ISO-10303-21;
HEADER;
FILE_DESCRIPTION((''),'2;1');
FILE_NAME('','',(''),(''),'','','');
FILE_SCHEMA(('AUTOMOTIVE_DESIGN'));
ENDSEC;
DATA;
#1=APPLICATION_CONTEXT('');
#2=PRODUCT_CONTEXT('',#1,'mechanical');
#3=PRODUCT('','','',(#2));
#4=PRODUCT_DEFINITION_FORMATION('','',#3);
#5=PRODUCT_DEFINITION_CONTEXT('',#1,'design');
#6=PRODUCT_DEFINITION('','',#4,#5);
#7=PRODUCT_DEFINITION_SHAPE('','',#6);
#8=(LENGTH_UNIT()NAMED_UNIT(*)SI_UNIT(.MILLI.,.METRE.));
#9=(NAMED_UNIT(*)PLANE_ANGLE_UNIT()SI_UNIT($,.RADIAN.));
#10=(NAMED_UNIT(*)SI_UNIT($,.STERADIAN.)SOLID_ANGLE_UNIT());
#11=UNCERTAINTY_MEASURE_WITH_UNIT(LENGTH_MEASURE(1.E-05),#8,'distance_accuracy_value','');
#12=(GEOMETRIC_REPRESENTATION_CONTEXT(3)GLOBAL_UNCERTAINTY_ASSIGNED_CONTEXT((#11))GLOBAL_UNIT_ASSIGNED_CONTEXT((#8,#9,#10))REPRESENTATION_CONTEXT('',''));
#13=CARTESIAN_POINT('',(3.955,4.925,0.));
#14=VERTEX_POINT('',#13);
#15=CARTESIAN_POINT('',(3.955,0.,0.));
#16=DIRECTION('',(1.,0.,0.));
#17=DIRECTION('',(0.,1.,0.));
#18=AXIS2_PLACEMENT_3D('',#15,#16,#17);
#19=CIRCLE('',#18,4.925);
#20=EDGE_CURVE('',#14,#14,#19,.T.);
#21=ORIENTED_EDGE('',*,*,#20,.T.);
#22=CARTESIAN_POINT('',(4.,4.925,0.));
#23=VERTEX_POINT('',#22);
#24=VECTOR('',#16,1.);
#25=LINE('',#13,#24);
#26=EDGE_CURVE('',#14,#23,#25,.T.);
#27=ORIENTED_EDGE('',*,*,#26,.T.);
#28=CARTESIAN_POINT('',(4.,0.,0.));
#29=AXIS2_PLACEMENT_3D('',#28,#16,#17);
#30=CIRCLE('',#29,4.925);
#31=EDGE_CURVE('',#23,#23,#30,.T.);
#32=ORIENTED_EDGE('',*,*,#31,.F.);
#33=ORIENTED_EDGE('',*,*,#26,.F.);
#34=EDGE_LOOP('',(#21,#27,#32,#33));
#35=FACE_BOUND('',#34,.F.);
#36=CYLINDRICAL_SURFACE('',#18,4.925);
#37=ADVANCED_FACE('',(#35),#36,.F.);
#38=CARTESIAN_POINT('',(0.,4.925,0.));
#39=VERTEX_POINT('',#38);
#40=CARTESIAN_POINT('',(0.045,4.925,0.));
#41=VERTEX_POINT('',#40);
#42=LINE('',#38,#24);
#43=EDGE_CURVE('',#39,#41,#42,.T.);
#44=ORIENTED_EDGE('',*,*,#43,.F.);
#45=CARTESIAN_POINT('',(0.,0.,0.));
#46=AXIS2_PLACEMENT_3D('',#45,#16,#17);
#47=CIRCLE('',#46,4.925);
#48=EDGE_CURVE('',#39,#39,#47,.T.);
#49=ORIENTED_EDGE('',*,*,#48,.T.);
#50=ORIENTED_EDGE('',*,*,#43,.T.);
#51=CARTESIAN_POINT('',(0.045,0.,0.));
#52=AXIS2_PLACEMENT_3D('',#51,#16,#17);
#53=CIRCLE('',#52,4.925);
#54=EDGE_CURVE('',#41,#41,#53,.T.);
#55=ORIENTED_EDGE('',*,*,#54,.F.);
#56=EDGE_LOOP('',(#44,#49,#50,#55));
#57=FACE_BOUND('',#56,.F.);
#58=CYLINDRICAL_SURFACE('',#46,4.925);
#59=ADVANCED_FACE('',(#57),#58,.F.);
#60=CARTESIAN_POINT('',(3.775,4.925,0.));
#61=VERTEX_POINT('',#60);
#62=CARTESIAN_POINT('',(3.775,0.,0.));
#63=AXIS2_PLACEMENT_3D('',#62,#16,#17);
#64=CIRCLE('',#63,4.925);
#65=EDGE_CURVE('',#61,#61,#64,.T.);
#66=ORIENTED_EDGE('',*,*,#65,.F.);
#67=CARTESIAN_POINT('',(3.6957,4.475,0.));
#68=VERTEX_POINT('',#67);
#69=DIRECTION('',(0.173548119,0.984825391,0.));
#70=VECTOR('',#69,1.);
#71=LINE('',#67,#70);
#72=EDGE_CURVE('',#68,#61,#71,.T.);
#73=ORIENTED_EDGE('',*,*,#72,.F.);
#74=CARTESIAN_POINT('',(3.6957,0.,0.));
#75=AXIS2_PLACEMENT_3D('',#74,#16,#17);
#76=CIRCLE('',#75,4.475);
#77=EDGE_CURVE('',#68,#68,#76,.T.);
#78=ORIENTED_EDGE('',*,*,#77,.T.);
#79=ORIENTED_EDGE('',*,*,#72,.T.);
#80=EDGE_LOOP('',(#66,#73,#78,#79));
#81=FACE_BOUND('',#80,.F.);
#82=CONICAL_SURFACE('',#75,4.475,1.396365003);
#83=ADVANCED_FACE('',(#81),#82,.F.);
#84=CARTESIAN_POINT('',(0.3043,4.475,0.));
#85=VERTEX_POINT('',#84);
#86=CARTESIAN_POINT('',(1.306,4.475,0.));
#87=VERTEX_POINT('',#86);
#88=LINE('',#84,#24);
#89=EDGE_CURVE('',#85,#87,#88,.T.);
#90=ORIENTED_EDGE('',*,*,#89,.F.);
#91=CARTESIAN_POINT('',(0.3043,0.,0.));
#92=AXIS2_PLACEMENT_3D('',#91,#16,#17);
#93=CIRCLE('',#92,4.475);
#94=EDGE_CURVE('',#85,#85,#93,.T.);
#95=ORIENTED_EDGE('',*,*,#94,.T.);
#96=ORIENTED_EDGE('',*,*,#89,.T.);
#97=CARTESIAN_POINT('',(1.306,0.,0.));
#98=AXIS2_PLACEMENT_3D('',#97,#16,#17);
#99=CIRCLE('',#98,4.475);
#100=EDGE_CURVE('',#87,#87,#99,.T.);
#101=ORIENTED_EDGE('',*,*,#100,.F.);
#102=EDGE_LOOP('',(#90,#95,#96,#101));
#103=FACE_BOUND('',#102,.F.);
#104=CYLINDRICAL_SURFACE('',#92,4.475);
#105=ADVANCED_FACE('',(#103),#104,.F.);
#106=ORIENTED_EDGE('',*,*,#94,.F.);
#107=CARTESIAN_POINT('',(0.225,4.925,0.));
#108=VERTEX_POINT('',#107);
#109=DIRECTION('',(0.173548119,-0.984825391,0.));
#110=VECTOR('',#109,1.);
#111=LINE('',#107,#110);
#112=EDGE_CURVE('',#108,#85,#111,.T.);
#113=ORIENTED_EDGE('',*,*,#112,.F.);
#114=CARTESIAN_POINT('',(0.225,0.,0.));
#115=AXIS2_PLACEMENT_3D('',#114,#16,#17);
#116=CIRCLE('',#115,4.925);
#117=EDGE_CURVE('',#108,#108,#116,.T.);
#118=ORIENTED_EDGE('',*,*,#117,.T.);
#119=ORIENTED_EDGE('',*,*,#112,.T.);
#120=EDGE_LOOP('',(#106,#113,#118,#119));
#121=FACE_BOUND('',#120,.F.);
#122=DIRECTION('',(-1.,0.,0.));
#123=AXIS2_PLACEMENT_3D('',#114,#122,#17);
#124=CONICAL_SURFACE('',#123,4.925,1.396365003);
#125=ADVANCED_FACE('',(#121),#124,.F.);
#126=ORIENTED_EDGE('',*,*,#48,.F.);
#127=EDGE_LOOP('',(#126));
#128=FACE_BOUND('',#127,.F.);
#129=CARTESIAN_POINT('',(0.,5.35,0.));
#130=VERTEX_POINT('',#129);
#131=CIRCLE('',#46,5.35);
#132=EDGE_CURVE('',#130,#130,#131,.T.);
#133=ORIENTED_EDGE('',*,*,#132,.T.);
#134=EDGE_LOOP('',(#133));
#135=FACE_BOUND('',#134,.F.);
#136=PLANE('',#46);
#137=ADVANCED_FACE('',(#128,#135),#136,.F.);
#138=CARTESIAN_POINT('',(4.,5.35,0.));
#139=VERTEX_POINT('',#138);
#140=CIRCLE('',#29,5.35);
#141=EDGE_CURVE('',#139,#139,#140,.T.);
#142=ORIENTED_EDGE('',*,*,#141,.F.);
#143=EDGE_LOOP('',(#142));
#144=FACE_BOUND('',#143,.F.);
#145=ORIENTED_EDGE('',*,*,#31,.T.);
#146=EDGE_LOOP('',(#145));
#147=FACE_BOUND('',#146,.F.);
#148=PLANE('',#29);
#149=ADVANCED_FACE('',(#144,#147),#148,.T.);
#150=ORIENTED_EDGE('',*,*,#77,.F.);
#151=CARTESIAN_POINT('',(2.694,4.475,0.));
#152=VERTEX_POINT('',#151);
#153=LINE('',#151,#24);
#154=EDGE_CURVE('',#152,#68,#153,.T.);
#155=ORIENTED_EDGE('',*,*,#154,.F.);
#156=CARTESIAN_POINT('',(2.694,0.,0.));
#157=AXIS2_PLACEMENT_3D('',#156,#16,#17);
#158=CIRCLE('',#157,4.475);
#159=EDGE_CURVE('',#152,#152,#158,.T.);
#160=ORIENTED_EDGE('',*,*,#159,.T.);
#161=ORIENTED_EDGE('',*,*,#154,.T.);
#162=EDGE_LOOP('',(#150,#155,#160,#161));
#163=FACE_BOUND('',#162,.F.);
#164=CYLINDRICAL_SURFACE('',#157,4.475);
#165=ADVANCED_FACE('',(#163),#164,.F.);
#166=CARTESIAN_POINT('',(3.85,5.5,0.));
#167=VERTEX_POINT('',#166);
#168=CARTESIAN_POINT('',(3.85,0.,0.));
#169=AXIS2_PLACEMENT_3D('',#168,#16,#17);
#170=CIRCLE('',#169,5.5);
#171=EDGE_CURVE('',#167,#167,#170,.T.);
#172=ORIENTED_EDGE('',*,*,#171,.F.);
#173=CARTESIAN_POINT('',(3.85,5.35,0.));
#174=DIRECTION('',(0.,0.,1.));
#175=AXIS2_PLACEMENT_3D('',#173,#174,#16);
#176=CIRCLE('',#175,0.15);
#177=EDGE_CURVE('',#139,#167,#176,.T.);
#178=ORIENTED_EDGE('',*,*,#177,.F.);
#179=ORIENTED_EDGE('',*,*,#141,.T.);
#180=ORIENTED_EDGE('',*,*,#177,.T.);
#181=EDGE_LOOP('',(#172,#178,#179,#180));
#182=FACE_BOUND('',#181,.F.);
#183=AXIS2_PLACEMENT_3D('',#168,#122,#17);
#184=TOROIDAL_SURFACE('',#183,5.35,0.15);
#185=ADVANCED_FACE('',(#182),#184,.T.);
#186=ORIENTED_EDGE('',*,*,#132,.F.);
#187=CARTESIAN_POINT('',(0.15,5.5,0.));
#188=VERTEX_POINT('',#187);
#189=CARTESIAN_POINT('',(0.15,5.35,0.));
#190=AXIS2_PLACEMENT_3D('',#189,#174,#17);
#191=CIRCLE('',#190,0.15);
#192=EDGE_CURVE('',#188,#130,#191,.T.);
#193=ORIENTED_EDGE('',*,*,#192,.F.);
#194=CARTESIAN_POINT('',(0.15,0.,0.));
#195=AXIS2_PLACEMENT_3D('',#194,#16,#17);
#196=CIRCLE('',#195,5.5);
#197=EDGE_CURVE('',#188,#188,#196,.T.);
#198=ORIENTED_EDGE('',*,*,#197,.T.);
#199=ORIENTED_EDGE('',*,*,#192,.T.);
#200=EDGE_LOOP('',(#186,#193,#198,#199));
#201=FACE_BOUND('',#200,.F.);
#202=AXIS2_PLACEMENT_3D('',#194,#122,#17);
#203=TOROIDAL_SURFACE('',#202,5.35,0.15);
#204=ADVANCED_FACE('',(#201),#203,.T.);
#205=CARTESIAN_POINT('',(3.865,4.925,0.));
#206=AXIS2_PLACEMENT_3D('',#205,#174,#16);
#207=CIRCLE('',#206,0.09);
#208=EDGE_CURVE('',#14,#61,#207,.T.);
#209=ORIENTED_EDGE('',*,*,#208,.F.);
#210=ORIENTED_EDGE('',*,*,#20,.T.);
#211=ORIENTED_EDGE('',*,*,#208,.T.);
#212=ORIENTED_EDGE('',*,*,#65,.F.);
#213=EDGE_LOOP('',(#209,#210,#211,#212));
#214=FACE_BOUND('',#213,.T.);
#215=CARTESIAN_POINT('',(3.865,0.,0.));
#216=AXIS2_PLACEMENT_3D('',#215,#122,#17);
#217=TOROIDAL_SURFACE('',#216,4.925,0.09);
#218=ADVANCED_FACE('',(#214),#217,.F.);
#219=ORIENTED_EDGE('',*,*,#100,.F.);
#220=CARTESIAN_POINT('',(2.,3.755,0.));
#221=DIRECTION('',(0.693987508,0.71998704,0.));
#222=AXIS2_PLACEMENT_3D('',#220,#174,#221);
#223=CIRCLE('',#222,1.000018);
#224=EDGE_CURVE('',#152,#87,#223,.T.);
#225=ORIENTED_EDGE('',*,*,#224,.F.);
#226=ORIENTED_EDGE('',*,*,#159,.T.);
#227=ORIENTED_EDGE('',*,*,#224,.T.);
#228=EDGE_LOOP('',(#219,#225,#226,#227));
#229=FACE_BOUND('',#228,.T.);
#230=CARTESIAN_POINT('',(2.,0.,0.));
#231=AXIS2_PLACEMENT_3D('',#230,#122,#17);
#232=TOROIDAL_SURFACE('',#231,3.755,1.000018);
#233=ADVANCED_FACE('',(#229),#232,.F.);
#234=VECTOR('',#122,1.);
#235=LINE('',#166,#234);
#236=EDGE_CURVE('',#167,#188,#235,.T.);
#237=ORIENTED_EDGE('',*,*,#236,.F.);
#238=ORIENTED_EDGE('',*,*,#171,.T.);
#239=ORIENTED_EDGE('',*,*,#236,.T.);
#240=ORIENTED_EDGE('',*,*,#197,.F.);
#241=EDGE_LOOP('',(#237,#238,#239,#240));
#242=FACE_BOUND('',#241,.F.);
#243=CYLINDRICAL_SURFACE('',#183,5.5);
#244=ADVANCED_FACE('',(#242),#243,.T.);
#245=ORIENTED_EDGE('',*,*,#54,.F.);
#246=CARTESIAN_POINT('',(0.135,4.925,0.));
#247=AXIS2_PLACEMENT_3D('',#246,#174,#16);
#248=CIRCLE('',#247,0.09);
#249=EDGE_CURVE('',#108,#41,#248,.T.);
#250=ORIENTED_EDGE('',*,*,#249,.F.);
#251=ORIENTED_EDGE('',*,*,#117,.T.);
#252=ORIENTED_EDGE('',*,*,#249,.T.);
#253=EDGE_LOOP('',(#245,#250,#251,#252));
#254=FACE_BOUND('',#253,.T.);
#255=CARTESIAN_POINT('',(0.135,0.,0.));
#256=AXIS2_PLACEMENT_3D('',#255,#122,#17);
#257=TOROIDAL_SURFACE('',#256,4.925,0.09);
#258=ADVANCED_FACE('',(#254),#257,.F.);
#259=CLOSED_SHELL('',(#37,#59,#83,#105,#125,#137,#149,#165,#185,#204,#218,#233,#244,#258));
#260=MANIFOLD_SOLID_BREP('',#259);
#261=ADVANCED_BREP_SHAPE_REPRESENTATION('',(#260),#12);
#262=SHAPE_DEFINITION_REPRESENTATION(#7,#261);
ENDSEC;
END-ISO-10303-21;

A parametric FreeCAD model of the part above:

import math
import FreeCAD as App
import Part
import Sketcher
from FreeCAD import Vector

doc = App.newDocument("Part")
body = doc.addObject("PartDesign::Body", "Body")

sketch1 = body.newObject("Sketcher::SketchObject", "Sketch")
sketch1.AttachmentSupport = (doc.getObject("XY_Plane"), [""])
sketch1.MapMode = "FlatFace"
sketch1.addGeometry(Part.ArcOfCircle(Part.Circle(Vector(0.15, 5.35, 0), Vector(0, 0, 1), 0.15), math.radians(90), math.radians(180)), False)
sketch1.addGeometry(Part.LineSegment(Vector(0, 5.35, 0), Vector(0, 4.925, 0)), False)
sketch1.addGeometry(Part.LineSegment(Vector(0, 4.925, 0), Vector(0.045, 4.925, 0)), False)
sketch1.addGeometry(Part.ArcOfCircle(Part.Circle(Vector(0.135, 4.925, 0), Vector(0, 0, 1), 0.09), math.radians(0), math.radians(180)), False)
sketch1.addGeometry(Part.LineSegment(Vector(0.225, 4.925, 0), Vector(0.304, 4.475, 0)), False)
sketch1.addGeometry(Part.LineSegment(Vector(0.304, 4.475, 0), Vector(1.306, 4.475, 0)), False)
sketch1.addGeometry(Part.ArcOfCircle(Part.Circle(Vector(2, 3.755, 0), Vector(0, 0, 1), 1), math.radians(46), math.radians(134)), False)
sketch1.addGeometry(Part.LineSegment(Vector(2.694, 4.475, 0), Vector(3.696, 4.475, 0)), False)
sketch1.addGeometry(Part.LineSegment(Vector(3.696, 4.475, 0), Vector(3.775, 4.925, 0)), False)
sketch1.addGeometry(Part.ArcOfCircle(Part.Circle(Vector(3.865, 4.925, 0), Vector(0, 0, 1), 0.09), math.radians(0), math.radians(180)), False)
sketch1.addGeometry(Part.LineSegment(Vector(3.955, 4.925, 0), Vector(4, 4.925, 0)), False)
sketch1.addGeometry(Part.LineSegment(Vector(4, 4.925, 0), Vector(4, 5.35, 0)), False)
sketch1.addGeometry(Part.ArcOfCircle(Part.Circle(Vector(3.85, 5.35, 0), Vector(0, 0, 1), 0.15), math.radians(0), math.radians(90)), False)
sketch1.addGeometry(Part.LineSegment(Vector(3.85, 5.5, 0), Vector(0.15, 5.5, 0)), False)
sketch1.addConstraint(Sketcher.Constraint("Tangent", 0, 2, 1, 1))
sketch1.addConstraint(Sketcher.Constraint("Coincident", 1, 2, 2, 1))
sketch1.addConstraint(Sketcher.Constraint("Coincident", 2, 2, 3, 2))
sketch1.addConstraint(Sketcher.Constraint("Coincident", 3, 1, 4, 1))
sketch1.addConstraint(Sketcher.Constraint("Coincident", 4, 2, 5, 1))
sketch1.addConstraint(Sketcher.Constraint("Coincident", 5, 2, 6, 2))
sketch1.addConstraint(Sketcher.Constraint("Coincident", 6, 1, 7, 1))
sketch1.addConstraint(Sketcher.Constraint("Coincident", 7, 2, 8, 1))
sketch1.addConstraint(Sketcher.Constraint("Coincident", 8, 2, 9, 2))
sketch1.addConstraint(Sketcher.Constraint("Coincident", 9, 1, 10, 1))
sketch1.addConstraint(Sketcher.Constraint("Coincident", 10, 2, 11, 1))
sketch1.addConstraint(Sketcher.Constraint("Tangent", 11, 2, 12, 1))
sketch1.addConstraint(Sketcher.Constraint("Tangent", 12, 2, 13, 1))
sketch1.addConstraint(Sketcher.Constraint("Tangent", 13, 2, 0, 1))
sketch1.addConstraint(Sketcher.Constraint("Vertical", 1))
sketch1.addConstraint(Sketcher.Constraint("Horizontal", 2))
sketch1.addConstraint(Sketcher.Constraint("Horizontal", 5))
sketch1.addConstraint(Sketcher.Constraint("Horizontal", 7))
sketch1.addConstraint(Sketcher.Constraint("Horizontal", 10))
sketch1.addConstraint(Sketcher.Constraint("Vertical", 11))
sketch1.addConstraint(Sketcher.Constraint("Horizontal", 13))
sketch1.addConstraint(Sketcher.Constraint("Equal", 3, 9))
sketch1.addConstraint(Sketcher.Constraint("Equal", 0, 12))
sketch1.addConstraint(Sketcher.Constraint("PointOnObject", 0, 2, -2))
sketch1.addConstraint(Sketcher.Constraint("Horizontal", 3, 3, 9, 3))
sketch1.addConstraint(Sketcher.Constraint("Horizontal", 9, 3, 1, 2))
sketch1.addConstraint(Sketcher.Constraint("Horizontal", 2, 2, 3, 1))
sketch1.addConstraint(Sketcher.Constraint("Horizontal", 5, 2, 6, 1))
sketch1.addConstraint(Sketcher.Constraint("Horizontal", 3, 1, 8, 2))
sketch1.addConstraint(Sketcher.Constraint("Horizontal", 8, 2, 9, 1))
sketch1.addConstraint(Sketcher.Constraint("Equal", 5, 7))
sketch1.addConstraint(Sketcher.Constraint("Equal", 2, 10))
sketch1.addConstraint(Sketcher.Constraint("Equal", 4, 8))
sketch1.addConstraint(Sketcher.Constraint("Radius", 6, 1.0))
sketch1.addConstraint(Sketcher.Constraint("Radius", 0, 0.15))
sketch1.addConstraint(Sketcher.Constraint("Radius", 3, 0.09))
sketch1.addConstraint(Sketcher.Constraint("DistanceX", 13, 2, 13, 1, 3.7))
sketch1.addConstraint(Sketcher.Constraint("DistanceY", -1, 1, 12, 2, 5.5))
sketch1.addConstraint(Sketcher.Constraint("DistanceX", 2, 1, 2, 2, 0.045))
sketch1.addConstraint(Sketcher.Constraint("DistanceY", 1, 2, 1, 1, 0.425))
sketch1.addConstraint(Sketcher.Constraint("DistanceY", 6, 3, 3, 3, 1.17))
sketch1.addConstraint(Sketcher.Constraint("DistanceY", 4, 2, 3, 1, 0.45))
sketch1.addConstraint(Sketcher.Constraint("Distance", 4, 0.457))
revolution = body.newObject("PartDesign::Revolution", "Revolution")
revolution.Profile = sketch1
revolution.ReferenceAxis = (sketch1, ["H_Axis"])
revolution.Angle = 360

doc.recompute()
